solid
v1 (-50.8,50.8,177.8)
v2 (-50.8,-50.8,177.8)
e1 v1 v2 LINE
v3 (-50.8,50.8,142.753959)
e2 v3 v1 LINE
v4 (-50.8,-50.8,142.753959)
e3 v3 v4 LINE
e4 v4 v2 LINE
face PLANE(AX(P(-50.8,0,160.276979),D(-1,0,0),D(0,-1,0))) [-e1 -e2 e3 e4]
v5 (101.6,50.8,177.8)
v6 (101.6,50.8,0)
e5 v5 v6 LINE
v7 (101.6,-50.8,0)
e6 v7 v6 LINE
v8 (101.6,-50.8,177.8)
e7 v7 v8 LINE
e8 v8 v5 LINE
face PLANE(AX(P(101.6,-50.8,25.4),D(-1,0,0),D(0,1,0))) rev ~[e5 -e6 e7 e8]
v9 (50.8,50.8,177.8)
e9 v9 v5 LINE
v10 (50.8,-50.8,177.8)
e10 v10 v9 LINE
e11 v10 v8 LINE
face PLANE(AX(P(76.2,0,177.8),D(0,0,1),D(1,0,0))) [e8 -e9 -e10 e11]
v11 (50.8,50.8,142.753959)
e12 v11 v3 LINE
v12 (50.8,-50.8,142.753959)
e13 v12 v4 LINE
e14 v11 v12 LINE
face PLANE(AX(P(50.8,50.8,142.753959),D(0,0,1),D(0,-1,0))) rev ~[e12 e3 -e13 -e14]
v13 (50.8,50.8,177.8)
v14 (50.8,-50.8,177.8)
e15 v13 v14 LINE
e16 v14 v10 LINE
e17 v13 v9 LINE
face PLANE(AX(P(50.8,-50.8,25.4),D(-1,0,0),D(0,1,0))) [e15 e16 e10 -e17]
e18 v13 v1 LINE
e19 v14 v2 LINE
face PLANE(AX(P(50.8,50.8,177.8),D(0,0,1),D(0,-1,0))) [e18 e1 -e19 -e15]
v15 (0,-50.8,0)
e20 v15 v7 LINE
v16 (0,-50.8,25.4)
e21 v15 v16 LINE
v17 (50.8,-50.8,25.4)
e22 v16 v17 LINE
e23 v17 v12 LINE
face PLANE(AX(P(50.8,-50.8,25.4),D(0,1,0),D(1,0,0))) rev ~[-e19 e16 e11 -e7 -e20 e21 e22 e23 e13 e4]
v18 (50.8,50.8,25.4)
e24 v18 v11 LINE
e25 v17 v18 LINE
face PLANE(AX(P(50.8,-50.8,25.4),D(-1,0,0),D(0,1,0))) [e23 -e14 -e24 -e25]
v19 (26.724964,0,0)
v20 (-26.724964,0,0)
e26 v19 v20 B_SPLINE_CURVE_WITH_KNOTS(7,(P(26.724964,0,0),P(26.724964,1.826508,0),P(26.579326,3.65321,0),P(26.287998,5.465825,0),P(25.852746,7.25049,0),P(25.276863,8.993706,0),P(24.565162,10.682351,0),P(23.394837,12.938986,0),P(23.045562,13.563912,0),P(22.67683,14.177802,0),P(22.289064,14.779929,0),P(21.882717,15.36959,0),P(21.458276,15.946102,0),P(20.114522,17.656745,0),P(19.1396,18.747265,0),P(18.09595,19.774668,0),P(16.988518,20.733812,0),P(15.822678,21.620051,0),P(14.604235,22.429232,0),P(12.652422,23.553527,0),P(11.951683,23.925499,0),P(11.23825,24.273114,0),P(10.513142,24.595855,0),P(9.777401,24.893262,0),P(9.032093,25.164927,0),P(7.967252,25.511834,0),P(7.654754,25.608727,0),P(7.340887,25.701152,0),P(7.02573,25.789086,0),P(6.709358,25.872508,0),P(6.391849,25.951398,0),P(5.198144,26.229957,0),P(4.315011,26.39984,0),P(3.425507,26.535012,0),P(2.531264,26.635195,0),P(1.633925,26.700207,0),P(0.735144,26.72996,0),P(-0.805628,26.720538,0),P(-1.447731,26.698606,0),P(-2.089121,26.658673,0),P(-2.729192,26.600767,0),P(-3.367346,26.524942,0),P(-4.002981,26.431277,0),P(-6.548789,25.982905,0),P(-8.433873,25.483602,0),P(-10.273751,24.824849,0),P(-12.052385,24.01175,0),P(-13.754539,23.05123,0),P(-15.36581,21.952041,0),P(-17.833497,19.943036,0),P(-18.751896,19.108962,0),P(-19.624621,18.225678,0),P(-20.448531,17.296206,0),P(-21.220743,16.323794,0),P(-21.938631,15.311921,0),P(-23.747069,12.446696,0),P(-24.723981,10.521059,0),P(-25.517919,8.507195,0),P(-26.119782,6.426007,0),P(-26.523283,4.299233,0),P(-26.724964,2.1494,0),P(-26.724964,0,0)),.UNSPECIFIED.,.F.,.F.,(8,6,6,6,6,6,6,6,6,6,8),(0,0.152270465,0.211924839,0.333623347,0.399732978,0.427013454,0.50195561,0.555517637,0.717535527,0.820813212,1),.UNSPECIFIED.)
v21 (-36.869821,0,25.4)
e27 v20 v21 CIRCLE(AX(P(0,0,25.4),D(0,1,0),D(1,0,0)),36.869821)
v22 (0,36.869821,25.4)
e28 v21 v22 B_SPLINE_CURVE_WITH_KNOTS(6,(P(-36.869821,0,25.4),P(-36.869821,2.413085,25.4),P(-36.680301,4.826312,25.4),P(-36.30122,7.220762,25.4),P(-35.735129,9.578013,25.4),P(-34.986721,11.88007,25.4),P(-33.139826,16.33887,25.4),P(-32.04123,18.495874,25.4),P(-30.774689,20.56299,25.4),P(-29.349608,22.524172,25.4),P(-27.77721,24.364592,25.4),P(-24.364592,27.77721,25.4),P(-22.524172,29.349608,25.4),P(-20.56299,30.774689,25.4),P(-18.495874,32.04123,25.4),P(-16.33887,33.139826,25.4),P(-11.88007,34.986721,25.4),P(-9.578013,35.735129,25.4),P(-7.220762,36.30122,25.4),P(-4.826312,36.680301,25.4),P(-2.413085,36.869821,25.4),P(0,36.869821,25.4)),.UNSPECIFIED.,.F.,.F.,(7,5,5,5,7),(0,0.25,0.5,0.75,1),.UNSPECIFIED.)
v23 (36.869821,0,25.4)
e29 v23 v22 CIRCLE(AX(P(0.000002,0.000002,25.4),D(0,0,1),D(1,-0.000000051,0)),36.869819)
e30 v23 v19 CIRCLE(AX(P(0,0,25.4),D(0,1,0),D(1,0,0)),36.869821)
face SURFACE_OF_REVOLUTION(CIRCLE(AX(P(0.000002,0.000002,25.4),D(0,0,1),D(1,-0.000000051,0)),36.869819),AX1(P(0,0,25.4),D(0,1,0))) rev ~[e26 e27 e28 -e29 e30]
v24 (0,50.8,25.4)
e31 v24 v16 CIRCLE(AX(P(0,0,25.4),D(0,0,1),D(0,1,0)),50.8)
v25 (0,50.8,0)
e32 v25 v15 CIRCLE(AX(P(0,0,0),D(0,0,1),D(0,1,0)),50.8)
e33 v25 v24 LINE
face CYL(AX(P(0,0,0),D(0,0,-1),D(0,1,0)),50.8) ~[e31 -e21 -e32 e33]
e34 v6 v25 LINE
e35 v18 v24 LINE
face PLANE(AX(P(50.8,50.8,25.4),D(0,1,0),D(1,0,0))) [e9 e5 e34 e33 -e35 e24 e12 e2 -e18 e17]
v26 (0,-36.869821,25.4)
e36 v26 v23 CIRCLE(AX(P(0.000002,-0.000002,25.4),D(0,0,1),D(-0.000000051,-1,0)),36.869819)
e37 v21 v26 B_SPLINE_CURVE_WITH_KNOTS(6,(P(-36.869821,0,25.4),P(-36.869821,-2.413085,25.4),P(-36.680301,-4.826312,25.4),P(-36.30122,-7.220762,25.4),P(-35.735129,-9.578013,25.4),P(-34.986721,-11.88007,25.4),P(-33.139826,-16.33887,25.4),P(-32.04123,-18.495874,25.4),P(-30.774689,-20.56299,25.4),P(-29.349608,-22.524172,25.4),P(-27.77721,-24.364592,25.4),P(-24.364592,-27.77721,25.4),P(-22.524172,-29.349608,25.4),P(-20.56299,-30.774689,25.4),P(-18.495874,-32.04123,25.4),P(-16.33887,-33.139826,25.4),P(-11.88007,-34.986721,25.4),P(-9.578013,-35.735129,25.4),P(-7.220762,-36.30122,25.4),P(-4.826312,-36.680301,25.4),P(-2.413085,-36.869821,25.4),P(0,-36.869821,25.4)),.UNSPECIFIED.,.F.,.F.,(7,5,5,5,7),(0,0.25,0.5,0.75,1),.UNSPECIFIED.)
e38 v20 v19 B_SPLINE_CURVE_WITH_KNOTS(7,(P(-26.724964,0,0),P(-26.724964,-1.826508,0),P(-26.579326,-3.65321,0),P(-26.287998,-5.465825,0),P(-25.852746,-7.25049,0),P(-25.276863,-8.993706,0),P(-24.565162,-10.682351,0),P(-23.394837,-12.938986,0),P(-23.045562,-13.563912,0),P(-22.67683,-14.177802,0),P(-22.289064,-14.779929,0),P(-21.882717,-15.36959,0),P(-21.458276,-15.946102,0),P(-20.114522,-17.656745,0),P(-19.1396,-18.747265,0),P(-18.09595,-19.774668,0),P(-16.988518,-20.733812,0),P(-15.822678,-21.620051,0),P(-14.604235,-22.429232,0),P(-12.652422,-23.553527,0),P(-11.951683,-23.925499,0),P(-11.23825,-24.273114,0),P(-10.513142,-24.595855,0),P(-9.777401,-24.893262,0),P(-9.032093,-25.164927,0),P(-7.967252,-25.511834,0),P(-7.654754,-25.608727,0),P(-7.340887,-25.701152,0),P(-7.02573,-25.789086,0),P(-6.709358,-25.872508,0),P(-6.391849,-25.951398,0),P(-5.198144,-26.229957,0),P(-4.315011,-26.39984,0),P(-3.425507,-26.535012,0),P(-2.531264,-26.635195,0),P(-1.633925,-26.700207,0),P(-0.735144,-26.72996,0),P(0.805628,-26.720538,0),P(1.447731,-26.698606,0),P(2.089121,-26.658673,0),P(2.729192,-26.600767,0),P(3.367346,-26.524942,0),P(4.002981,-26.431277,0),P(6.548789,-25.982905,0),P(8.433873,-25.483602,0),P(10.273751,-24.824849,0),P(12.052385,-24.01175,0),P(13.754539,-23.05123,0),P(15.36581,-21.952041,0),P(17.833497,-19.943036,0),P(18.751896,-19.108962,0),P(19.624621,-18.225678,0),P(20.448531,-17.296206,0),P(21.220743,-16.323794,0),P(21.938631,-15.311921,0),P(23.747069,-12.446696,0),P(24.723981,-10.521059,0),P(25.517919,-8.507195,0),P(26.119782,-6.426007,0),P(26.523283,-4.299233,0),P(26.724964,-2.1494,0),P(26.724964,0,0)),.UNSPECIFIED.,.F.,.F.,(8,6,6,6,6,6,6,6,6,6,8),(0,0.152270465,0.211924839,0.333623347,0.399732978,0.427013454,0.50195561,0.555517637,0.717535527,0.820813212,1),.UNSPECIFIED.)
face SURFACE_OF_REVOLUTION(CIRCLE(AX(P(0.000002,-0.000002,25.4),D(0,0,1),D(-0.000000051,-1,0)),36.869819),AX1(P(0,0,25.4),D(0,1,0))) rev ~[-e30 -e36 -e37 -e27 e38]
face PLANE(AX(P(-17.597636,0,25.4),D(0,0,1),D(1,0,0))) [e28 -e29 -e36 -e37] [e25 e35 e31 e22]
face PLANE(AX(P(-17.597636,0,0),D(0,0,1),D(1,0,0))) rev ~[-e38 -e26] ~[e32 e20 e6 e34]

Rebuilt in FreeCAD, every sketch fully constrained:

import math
import FreeCAD as App
import Part
import Sketcher
Q = App.Units.Quantity

doc = App.newDocument("Part")
body = doc.addObject("PartDesign::Body", "Body")

# Sketch on XY plane
sketch1 = doc.addObject("Sketcher::SketchObject", "Sketch")
body.addObject(sketch1)
sketch1.AttachmentSupport = (doc.XY_Plane, [""])
sketch1.MapMode = "FlatFace"
sketch1.addGeometry([
    Part.ArcOfCircle(Part.Circle(App.Vector(0, 0, 0), App.Vector(0, 0, 1), 51), math.radians(90), math.radians(270)),
    Part.LineSegment(App.Vector(0, -51, 0), App.Vector(102, -51, 0)),
    Part.LineSegment(App.Vector(102, -51, 0), App.Vector(102, 51, 0)),
    Part.LineSegment(App.Vector(102, 51, 0), App.Vector(0, 51, 0)),
], False)
sketch1.addConstraint([
    Sketcher.Constraint("Tangent", 0, 2, 1, 1),
    Sketcher.Constraint("Coincident", 1, 2, 2, 1),
    Sketcher.Constraint("Coincident", 2, 2, 3, 1),
    Sketcher.Constraint("Tangent", 3, 2, 0, 1),
    Sketcher.Constraint("Horizontal", 1),
    Sketcher.Constraint("Vertical", 2),
    Sketcher.Constraint("Horizontal", 3),
    Sketcher.Constraint("Coincident", 0, 3, -1, 1),
    Sketcher.Constraint("Equal", 3, 2),
    Sketcher.Constraint("Radius", 0, Q("2 in")),
])
pad1 = doc.addObject("PartDesign::Pad", "Pad")
body.addObject(pad1)
pad1.Profile = sketch1
pad1.Length = Q("1 in")

# Sketch on XY plane
sketch2 = doc.addObject("Sketcher::SketchObject", "Sketch001")
body.addObject(sketch2)
sketch2.AttachmentSupport = (doc.XY_Plane, [""])
sketch2.MapMode = "FlatFace"
sketch2.AttachmentOffset = App.Placement(App.Vector(0, 0, 1 * 25.4), App.Rotation())
sketch2.addGeometry([
    Part.LineSegment(App.Vector(51, 51, 0), App.Vector(51, -51, 0)),
    Part.LineSegment(App.Vector(51, -51, 0), App.Vector(102, -51, 0)),
    Part.LineSegment(App.Vector(102, -51, 0), App.Vector(102, 51, 0)),
    Part.LineSegment(App.Vector(102, 51, 0), App.Vector(51, 51, 0)),
], False)
sketch2.addConstraint([
    Sketcher.Constraint("Coincident", 0, 2, 1, 1),
    Sketcher.Constraint("Coincident", 1, 2, 2, 1),
    Sketcher.Constraint("Coincident", 2, 2, 3, 1),
    Sketcher.Constraint("Coincident", 3, 2, 0, 1),
    Sketcher.Constraint("Vertical", 0),
    Sketcher.Constraint("Horizontal", 1),
    Sketcher.Constraint("Vertical", 2),
    Sketcher.Constraint("Horizontal", 3),
    Sketcher.Constraint("DistanceX", 1, 1, 1, 2, Q("2 in")),
    Sketcher.Constraint("DistanceY", 0, 2, 0, 1, Q("4 in")),
    Sketcher.Constraint("DistanceX", -1, 1, 0, 2, Q("2 in")),
    Sketcher.Constraint("DistanceY", 0, 2, -1, 1, Q("2 in")),
])
pad2 = doc.addObject("PartDesign::Pad", "Pad001")
body.addObject(pad2)
pad2.Profile = sketch2
pad2.Length = Q("6 in")
body2 = doc.addObject("PartDesign::Body", "Body001")

# Sketch on XY plane
sketch3 = doc.addObject("Sketcher::SketchObject", "Sketch002")
body2.addObject(sketch3)
sketch3.AttachmentSupport = (doc.getObject("XY_Plane001"), [""])
sketch3.MapMode = "FlatFace"
sketch3.AttachmentOffset = App.Placement(App.Vector(0, 0, 1 * 25.4), App.Rotation())
sketch3.addGeometry([
    Part.ArcOfCircle(Part.Circle(App.Vector(0, 0, 0), App.Vector(0, 0, 1), 37), math.radians(-90), math.radians(0)),
    Part.ArcOfCircle(Part.Circle(App.Vector(0, 0, 0), App.Vector(0, 0, 1), 37), math.radians(0), math.radians(90)),
    Part.LineSegment(App.Vector(0, 37, 0), App.Vector(0, -37, 0)),
], False)
sketch3.addConstraint([
    Sketcher.Constraint("Tangent", 0, 2, 1, 1),
    Sketcher.Constraint("Coincident", 1, 2, 2, 1),
    Sketcher.Constraint("Coincident", 2, 2, 0, 1),
    Sketcher.Constraint("Vertical", 2),
    Sketcher.Constraint("Coincident", 0, 3, -1, 1),
    Sketcher.Constraint("Equal", 0, 1),
    Sketcher.Constraint("PointOnObject", 0, 2, -1),
    Sketcher.Constraint("PointOnObject", 1, 2, -2),
    Sketcher.Constraint("Radius", 0, Q("36.869819 mm")),
])
revolution = doc.addObject("PartDesign::Revolution", "Revolution")
body2.addObject(revolution)
revolution.Profile = sketch3
revolution.ReferenceAxis = (sketch3, ["V_Axis"])
revolution.Angle = 360
doc.recompute()

boolean = doc.addObject("PartDesign::Boolean", "Boolean")
body.addObject(boolean)
boolean.Type = "Cut"
boolean.addObjects([body2])

# Sketch on YZ plane
sketch4 = doc.addObject("Sketcher::SketchObject", "Sketch003")
body.addObject(sketch4)
sketch4.AttachmentSupport = (doc.YZ_Plane, [""])
sketch4.MapMode = "FlatFace"
sketch4.AttachmentOffset = App.Placement(App.Vector(0, 0, 2 * 25.4), App.Rotation())
sketch4.addGeometry([
    Part.LineSegment(App.Vector(51, 178, 0), App.Vector(51, 143, 0)),
    Part.LineSegment(App.Vector(51, 143, 0), App.Vector(-51, 143, 0)),
    Part.LineSegment(App.Vector(-51, 143, 0), App.Vector(-51, 178, 0)),
    Part.LineSegment(App.Vector(-51, 178, 0), App.Vector(51, 178, 0)),
], False)
sketch4.addConstraint([
    Sketcher.Constraint("Coincident", 0, 2, 1, 1),
    Sketcher.Constraint("Coincident", 1, 2, 2, 1),
    Sketcher.Constraint("Coincident", 2, 2, 3, 1),
    Sketcher.Constraint("Coincident", 3, 2, 0, 1),
    Sketcher.Constraint("Vertical", 0),
    Sketcher.Constraint("Horizontal", 1),
    Sketcher.Constraint("Vertical", 2),
    Sketcher.Constraint("Horizontal", 3),
    Sketcher.Constraint("DistanceX", 1, 2, 1, 1, Q("4 in")),
    Sketcher.Constraint("DistanceX", -1, 1, 0, 2, Q("2 in")),
    Sketcher.Constraint("DistanceY", -1, 1, 2, 2, Q("7 in")),
    Sketcher.Constraint("DistanceY", 0, 2, 0, 1, Q("35.046041 mm")),
])
pad3 = doc.addObject("PartDesign::Pad", "Pad002")
body.addObject(pad3)
pad3.Profile = sketch4
pad3.Length = Q("4 in")
pad3.Reversed = True

doc.recompute()
